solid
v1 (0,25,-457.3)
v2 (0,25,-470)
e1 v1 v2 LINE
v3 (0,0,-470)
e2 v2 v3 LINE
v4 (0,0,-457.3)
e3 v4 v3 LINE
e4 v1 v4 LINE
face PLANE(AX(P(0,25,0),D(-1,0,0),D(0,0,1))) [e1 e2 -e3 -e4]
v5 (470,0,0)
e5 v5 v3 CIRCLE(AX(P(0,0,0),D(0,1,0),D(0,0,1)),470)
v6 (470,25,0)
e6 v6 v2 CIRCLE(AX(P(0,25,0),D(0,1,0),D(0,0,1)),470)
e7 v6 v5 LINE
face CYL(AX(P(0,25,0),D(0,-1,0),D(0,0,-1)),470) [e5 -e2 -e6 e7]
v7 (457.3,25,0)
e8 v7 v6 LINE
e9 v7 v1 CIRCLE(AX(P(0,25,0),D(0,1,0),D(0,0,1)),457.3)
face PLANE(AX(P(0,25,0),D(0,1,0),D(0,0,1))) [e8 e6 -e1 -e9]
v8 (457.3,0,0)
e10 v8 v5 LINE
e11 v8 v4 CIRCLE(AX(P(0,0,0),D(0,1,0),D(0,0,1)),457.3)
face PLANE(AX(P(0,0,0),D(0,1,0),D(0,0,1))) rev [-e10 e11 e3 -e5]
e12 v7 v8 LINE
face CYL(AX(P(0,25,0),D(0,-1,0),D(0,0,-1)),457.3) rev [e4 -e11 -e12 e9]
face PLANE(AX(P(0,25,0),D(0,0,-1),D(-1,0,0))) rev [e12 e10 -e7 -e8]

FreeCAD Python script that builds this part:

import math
import FreeCAD as App
import Part
import Sketcher
Q = App.Units.Quantity

doc = App.newDocument("Part")
body = doc.addObject("PartDesign::Body", "Body")

# Sketch on XZ plane
sketch1 = body.newObject("Sketcher::SketchObject", "Sketch")
sketch1.AttachmentSupport = (doc.getObject("XZ_Plane"), [""])
sketch1.MapMode = "FlatFace"
sketch1.addGeometry([
    Part.LineSegment(App.Vector(0, -470, 0), App.Vector(0, -457.3, 0)),
    Part.ArcOfCircle(Part.Circle(App.Vector(0, 0, 0), App.Vector(0, 0, 1), 457.3), math.radians(-90), math.radians(0)),
    Part.LineSegment(App.Vector(457.3, 0, 0), App.Vector(470, 0, 0)),
    Part.ArcOfCircle(Part.Circle(App.Vector(0, 0, 0), App.Vector(0, 0, 1), 470), math.radians(-90), math.radians(0)),
], False)
sketch1.addConstraint([
    Sketcher.Constraint("Coincident", 0, 2, 1, 1),
    Sketcher.Constraint("Coincident", 1, 2, 2, 1),
    Sketcher.Constraint("Coincident", 2, 2, 3, 2),
    Sketcher.Constraint("Coincident", 3, 1, 0, 1),
    Sketcher.Constraint("Vertical", 0),
    Sketcher.Constraint("Horizontal", 2),
    Sketcher.Constraint("Coincident", 1, 3, -1, 1),
    Sketcher.Constraint("Coincident", 3, 3, -1, 1),
    Sketcher.Constraint("PointOnObject", 0, 2, -2),
    Sketcher.Constraint("PointOnObject", 2, 2, -1),
    Sketcher.Constraint("Radius", 3, Q("470 mm")),
    Sketcher.Constraint("Radius", 1, Q("457.3 mm")),
])
pad1 = body.newObject("PartDesign::Pad", "Pad")
pad1.Profile = sketch1
pad1.Length = 25
pad1.Reversed = True

doc.recompute()
